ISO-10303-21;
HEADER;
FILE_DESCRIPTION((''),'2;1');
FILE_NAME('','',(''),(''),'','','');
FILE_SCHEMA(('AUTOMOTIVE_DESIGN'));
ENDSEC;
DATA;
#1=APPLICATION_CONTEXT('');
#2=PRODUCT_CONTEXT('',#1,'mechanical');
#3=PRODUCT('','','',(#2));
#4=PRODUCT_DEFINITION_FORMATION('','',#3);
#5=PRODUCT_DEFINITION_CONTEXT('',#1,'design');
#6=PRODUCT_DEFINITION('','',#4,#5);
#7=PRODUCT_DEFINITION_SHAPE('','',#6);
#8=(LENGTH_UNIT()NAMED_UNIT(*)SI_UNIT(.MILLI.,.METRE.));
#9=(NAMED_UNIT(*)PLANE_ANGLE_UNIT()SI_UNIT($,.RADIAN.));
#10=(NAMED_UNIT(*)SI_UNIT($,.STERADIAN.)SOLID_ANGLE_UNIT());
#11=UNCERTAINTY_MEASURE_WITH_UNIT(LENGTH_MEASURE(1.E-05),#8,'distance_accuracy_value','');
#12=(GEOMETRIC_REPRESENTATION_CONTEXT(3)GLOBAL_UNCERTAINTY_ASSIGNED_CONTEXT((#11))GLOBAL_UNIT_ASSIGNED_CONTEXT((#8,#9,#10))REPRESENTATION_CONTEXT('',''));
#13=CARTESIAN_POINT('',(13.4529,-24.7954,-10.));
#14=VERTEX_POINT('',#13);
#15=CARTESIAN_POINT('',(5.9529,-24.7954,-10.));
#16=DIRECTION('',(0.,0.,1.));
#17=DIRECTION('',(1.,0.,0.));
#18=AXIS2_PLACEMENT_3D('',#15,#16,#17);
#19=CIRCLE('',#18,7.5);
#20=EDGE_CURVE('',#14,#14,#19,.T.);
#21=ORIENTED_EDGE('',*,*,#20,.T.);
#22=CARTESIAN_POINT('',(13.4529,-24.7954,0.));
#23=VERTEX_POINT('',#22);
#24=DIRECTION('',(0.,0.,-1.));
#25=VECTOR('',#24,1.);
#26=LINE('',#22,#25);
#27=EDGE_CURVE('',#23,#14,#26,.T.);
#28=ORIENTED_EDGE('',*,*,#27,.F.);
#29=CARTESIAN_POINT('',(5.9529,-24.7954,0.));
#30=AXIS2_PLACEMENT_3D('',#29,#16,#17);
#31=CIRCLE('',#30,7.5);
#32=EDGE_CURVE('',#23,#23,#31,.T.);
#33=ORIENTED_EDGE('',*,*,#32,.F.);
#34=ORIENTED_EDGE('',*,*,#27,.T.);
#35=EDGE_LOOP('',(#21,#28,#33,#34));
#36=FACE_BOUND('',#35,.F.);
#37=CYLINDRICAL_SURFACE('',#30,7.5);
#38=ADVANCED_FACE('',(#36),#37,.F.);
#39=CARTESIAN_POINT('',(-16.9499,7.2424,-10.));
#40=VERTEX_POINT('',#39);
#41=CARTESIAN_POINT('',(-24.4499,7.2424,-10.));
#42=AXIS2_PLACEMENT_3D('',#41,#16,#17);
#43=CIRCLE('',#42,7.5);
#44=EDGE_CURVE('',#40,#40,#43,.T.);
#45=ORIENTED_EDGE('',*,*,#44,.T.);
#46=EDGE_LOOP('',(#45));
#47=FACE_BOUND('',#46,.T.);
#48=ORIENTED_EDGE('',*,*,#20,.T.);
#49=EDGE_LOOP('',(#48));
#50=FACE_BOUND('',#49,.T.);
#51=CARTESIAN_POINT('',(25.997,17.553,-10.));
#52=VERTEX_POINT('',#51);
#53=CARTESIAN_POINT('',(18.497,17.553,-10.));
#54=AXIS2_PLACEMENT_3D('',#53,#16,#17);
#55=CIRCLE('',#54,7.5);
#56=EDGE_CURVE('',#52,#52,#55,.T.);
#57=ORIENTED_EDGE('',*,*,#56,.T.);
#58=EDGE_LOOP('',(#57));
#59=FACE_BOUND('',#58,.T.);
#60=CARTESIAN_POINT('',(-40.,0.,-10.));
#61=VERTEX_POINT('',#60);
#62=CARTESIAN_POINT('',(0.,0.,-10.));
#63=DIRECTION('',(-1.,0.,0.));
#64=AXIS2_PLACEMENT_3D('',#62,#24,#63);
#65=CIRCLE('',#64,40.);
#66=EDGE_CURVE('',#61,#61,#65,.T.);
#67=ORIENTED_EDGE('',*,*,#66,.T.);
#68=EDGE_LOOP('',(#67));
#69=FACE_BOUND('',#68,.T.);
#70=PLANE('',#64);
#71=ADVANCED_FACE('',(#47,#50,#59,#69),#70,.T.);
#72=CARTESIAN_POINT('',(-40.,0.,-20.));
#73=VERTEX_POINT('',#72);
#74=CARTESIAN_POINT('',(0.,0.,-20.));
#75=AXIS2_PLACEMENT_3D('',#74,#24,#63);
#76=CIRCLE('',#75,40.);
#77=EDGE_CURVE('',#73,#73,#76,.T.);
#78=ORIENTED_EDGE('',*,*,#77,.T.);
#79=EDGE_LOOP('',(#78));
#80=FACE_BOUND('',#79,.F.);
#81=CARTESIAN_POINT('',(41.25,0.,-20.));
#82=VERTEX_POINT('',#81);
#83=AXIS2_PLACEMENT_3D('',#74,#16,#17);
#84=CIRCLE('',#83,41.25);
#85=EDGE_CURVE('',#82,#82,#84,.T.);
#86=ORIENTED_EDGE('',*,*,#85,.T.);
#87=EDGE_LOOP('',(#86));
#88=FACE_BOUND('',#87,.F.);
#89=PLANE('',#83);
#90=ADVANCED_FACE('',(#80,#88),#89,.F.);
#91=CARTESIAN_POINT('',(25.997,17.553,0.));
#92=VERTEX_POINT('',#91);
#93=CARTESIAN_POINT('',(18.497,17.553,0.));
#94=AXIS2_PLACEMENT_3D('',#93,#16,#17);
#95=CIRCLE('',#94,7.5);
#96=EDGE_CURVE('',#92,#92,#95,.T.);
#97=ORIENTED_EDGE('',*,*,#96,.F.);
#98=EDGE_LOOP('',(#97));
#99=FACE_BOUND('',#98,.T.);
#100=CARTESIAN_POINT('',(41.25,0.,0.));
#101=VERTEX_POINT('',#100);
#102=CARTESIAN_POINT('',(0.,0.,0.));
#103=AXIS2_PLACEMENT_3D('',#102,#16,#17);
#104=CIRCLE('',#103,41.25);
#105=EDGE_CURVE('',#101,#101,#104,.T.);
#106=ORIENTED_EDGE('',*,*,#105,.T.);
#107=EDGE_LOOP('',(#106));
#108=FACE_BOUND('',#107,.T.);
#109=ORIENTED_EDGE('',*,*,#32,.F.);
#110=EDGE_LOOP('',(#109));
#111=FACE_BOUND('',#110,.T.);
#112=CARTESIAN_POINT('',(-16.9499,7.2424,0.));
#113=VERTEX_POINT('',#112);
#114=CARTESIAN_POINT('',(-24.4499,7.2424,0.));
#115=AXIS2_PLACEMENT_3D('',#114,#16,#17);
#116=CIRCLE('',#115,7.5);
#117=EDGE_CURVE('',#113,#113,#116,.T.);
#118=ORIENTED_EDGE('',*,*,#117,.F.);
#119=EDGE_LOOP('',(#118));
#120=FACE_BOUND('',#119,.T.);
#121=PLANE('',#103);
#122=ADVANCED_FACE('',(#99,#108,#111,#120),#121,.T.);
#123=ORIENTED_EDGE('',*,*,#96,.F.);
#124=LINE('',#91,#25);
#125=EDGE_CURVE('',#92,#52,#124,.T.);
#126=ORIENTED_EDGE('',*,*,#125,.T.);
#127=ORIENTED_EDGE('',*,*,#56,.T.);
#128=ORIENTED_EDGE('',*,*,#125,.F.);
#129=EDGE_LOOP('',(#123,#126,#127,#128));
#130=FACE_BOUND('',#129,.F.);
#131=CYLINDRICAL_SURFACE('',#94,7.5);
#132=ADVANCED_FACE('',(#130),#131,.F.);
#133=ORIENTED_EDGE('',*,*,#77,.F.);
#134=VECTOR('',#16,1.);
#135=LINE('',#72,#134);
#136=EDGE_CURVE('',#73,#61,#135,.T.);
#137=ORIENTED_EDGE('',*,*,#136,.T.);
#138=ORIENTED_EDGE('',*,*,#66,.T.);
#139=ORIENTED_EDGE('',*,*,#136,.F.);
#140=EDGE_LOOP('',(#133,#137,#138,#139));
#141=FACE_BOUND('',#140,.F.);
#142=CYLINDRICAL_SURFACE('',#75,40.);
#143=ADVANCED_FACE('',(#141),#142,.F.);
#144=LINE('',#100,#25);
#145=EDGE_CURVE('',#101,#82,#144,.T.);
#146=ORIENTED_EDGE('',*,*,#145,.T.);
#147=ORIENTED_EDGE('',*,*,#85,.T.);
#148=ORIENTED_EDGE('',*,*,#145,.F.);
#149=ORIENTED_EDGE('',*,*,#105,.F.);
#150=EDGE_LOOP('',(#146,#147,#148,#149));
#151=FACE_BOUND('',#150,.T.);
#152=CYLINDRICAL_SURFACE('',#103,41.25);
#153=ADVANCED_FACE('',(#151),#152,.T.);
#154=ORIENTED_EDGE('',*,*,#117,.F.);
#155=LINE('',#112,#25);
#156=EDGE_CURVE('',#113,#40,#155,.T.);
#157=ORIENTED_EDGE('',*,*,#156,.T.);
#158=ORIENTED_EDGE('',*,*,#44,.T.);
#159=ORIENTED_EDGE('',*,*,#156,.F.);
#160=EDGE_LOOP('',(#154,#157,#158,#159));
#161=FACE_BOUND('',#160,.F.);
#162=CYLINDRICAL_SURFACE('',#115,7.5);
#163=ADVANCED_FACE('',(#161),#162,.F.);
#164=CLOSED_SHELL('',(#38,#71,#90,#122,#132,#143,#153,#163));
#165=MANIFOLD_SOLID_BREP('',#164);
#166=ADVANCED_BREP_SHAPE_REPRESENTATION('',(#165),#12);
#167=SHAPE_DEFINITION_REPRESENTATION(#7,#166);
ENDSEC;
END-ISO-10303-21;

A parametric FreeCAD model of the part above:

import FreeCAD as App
import Part
import Sketcher

doc = App.newDocument("Part")
body = doc.addObject("PartDesign::Body", "Body")

# Sketch on XY plane
sketch1 = doc.addObject("Sketcher::SketchObject", "Sketch")
body.addObject(sketch1)
sketch1.AttachmentSupport = (doc.XY_Plane, [""])
sketch1.MapMode = "FlatFace"
sketch1.addGeometry(Part.Circle(App.Vector(0, 0, 0), App.Vector(0, 0, 1), 41), False)
sketch1.addGeometry(Part.Circle(App.Vector(6, -25, 0), App.Vector(0, 0, 1), 8), False)
sketch1.addGeometry(Part.Circle(App.Vector(-24, 7, 0), App.Vector(0, 0, 1), 8), False)
sketch1.addGeometry(Part.Circle(App.Vector(18, 18, 0), App.Vector(0, 0, 1), 8), False)
sketch1.addConstraint(Sketcher.Constraint("Coincident", 0, 3, -1, 1))
sketch1.addConstraint(Sketcher.Constraint("Equal", 1, 2))
sketch1.addConstraint(Sketcher.Constraint("Equal", 2, 3))
sketch1.addConstraint(Sketcher.Constraint("Diameter", 0, 82.5))
sketch1.addConstraint(Sketcher.Constraint("Diameter", 1, 15.0))
sketch1.addConstraint(Sketcher.Constraint("DistanceX", 2, 3, -1, 1, 24.45))
sketch1.addConstraint(Sketcher.Constraint("DistanceX", -1, 1, 1, 3, 5.953))
sketch1.addConstraint(Sketcher.Constraint("DistanceX", -1, 1, 3, 3, 18.497))
sketch1.addConstraint(Sketcher.Constraint("DistanceY", -1, 1, 3, 3, 17.553))
sketch1.addConstraint(Sketcher.Constraint("DistanceY", 1, 3, -1, 1, 24.7954))
sketch1.addConstraint(Sketcher.Constraint("DistanceY", -1, 1, 2, 3, 7.2424))
pad1 = doc.addObject("PartDesign::Pad", "Pad")
body.addObject(pad1)
pad1.Profile = sketch1
pad1.Length = 20
pad1.Reversed = True

# Sketch on XY plane
sketch2 = doc.addObject("Sketcher::SketchObject", "Sketch001")
body.addObject(sketch2)
sketch2.AttachmentSupport = (doc.XY_Plane, [""])
sketch2.MapMode = "FlatFace"
sketch2.AttachmentOffset = App.Placement(App.Vector(0, 0, -20), App.Rotation())
sketch2.addGeometry(Part.Circle(App.Vector(0, 0, 0), App.Vector(0, 0, 1), 40), False)
sketch2.addConstraint(Sketcher.Constraint("Coincident", 0, 3, -1, 1))
sketch2.addConstraint(Sketcher.Constraint("Diameter", 0, 80.0))
pocket1 = doc.addObject("PartDesign::Pocket", "Pocket")
body.addObject(pocket1)
pocket1.Profile = sketch2
pocket1.Length = 10
pocket1.Reversed = True

doc.recompute()
